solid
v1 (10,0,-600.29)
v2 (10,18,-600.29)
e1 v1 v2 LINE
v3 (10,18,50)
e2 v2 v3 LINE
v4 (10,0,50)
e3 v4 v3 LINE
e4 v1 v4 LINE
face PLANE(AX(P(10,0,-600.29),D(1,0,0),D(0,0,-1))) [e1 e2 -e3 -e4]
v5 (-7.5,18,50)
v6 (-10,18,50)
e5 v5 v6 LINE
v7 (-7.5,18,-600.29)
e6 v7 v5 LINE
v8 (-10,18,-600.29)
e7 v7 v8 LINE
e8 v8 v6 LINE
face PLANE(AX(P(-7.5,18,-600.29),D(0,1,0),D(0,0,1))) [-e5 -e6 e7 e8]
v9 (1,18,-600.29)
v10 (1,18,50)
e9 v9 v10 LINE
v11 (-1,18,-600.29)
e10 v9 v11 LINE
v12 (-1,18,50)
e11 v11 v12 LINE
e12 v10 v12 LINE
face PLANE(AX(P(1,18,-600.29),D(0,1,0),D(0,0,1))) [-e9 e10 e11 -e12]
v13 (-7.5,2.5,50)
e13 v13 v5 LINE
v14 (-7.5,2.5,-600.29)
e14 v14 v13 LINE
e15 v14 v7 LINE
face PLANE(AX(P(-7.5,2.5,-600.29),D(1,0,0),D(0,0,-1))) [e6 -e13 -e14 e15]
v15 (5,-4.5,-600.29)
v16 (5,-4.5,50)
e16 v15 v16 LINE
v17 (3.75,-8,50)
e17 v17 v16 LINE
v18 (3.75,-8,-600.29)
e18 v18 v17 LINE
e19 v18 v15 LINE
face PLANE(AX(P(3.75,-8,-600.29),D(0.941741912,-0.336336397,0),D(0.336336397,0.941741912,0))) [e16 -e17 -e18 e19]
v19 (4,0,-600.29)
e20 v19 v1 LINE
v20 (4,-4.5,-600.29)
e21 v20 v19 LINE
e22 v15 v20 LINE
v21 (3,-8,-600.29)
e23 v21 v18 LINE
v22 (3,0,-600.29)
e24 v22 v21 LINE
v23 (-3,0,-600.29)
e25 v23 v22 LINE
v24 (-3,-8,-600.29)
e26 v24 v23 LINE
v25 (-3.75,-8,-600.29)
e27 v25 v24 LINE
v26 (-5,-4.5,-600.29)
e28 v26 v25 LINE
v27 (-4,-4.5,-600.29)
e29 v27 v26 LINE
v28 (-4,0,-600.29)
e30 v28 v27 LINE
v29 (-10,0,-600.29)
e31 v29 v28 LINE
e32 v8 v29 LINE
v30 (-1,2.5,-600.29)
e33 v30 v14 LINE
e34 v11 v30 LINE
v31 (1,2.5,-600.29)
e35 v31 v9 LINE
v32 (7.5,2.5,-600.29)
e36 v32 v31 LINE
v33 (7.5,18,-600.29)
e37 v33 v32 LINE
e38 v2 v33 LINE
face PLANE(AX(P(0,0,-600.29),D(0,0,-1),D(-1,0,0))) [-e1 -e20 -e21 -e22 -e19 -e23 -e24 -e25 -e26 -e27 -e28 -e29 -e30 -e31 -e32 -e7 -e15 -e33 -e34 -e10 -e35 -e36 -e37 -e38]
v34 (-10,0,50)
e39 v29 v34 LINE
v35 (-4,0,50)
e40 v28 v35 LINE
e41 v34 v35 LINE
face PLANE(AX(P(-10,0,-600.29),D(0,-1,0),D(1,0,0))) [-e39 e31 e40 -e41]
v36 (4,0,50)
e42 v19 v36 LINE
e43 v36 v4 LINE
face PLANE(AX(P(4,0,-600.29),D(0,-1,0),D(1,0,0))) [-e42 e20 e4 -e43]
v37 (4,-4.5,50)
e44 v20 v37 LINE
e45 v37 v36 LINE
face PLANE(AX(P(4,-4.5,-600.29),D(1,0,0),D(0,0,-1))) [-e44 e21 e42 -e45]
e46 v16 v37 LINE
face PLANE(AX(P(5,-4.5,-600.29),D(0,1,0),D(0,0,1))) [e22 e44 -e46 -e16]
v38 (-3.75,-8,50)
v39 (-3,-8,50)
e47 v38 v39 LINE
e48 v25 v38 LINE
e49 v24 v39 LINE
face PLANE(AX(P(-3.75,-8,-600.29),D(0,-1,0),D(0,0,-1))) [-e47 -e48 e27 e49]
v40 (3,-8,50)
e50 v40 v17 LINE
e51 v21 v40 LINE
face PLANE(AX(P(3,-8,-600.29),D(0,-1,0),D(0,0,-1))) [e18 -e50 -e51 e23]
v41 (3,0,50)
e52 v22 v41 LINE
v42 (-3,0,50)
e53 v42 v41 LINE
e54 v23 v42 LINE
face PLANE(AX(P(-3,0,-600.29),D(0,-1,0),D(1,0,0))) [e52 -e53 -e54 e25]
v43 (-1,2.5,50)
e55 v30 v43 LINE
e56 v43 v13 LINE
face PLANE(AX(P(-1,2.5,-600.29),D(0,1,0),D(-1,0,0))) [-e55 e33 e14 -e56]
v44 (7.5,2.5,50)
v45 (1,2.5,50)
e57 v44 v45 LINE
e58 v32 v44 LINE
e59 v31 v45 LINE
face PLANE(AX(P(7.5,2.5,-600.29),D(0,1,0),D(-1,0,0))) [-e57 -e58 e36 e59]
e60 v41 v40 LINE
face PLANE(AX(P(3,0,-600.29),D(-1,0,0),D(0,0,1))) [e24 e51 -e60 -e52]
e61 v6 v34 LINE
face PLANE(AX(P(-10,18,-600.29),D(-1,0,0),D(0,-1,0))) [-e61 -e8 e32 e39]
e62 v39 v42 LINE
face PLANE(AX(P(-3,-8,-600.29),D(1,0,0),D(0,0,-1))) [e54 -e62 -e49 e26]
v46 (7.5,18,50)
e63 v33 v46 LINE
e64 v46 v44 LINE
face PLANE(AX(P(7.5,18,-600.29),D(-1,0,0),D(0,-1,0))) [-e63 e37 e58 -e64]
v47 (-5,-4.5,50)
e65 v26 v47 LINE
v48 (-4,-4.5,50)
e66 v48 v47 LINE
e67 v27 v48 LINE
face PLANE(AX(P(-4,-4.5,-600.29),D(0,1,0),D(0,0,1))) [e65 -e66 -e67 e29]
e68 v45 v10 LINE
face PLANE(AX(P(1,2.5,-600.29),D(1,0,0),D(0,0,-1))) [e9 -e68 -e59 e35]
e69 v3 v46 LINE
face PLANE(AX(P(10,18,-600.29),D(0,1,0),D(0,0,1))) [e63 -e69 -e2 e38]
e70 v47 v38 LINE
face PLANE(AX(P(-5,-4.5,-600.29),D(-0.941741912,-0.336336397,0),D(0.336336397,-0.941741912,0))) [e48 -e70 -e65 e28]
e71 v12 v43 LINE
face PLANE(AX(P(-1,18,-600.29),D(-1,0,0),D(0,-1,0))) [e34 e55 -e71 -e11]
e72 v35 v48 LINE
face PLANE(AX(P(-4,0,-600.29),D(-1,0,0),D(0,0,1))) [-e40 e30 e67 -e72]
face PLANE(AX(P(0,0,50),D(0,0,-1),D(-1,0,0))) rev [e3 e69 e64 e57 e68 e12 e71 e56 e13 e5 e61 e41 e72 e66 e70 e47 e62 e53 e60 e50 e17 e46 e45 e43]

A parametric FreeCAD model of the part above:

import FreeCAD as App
import Part
import Sketcher

doc = App.newDocument("Part")
params = doc.addObject("Spreadsheet::Sheet", "Params")
for row, (alias, value) in enumerate([
    ("sketch1_width", "6 mm"),
    ("sketch1_width2", "1 mm"),
    ("sketch1_width3", "2 mm"),
    ("sketch1_height", "18 mm"),
    ("sketch1_height2", "8 mm"),
    ("pad1_length", "650.29 mm"),
], start=1):
    params.set(f"A{row}", alias)
    params.set(f"B{row}", "=" + value)
    params.setAlias(f"B{row}", alias)

body = doc.addObject("PartDesign::Body", "Body")

sketch1 = body.newObject("Sketcher::SketchObject", "Sketch")
sketch1.AttachmentSupport = (doc.getObject("XY_Plane"), [""])
sketch1.MapMode = "FlatFace"
sketch1.AttachmentOffset = App.Placement(App.Vector(0, 0, 50), App.Rotation())
sketch1.addGeometry(Part.LineSegment(App.Vector(-1, 2.5, 0), App.Vector(-7.5, 2.5, 0)), False)
sketch1.addGeometry(Part.LineSegment(App.Vector(-7.5, 2.5, 0), App.Vector(-7.5, 18, 0)), False)
sketch1.addGeometry(Part.LineSegment(App.Vector(-7.5, 18, 0), App.Vector(-10, 18, 0)), False)
sketch1.addGeometry(Part.LineSegment(App.Vector(-10, 18, 0), App.Vector(-10, 0, 0)), False)
sketch1.addGeometry(Part.LineSegment(App.Vector(-10, 0, 0), App.Vector(-4, 0, 0)), False)
sketch1.addGeometry(Part.LineSegment(App.Vector(-4, 0, 0), App.Vector(-4, -4.5, 0)), False)
sketch1.addGeometry(Part.LineSegment(App.Vector(-4, -4.5, 0), App.Vector(-5, -4.5, 0)), False)
sketch1.addGeometry(Part.LineSegment(App.Vector(-5, -4.5, 0), App.Vector(-3.8, -8, 0)), False)
sketch1.addGeometry(Part.LineSegment(App.Vector(-3.8, -8, 0), App.Vector(-3, -8, 0)), False)
sketch1.addGeometry(Part.LineSegment(App.Vector(-3, -8, 0), App.Vector(-3, 0, 0)), False)
sketch1.addGeometry(Part.LineSegment(App.Vector(-3, 0, 0), App.Vector(3, 0, 0)), False)
sketch1.addGeometry(Part.LineSegment(App.Vector(3, 0, 0), App.Vector(3, -8, 0)), False)
sketch1.addGeometry(Part.LineSegment(App.Vector(3, -8, 0), App.Vector(3.8, -8, 0)), False)
sketch1.addGeometry(Part.LineSegment(App.Vector(3.8, -8, 0), App.Vector(5, -4.5, 0)), False)
sketch1.addGeometry(Part.LineSegment(App.Vector(5, -4.5, 0), App.Vector(4, -4.5, 0)), False)
sketch1.addGeometry(Part.LineSegment(App.Vector(4, -4.5, 0), App.Vector(4, 0, 0)), False)
sketch1.addGeometry(Part.LineSegment(App.Vector(4, 0, 0), App.Vector(10, 0, 0)), False)
sketch1.addGeometry(Part.LineSegment(App.Vector(10, 0, 0), App.Vector(10, 18, 0)), False)
sketch1.addGeometry(Part.LineSegment(App.Vector(10, 18, 0), App.Vector(7.5, 18, 0)), False)
sketch1.addGeometry(Part.LineSegment(App.Vector(7.5, 18, 0), App.Vector(7.5, 2.5, 0)), False)
sketch1.addGeometry(Part.LineSegment(App.Vector(7.5, 2.5, 0), App.Vector(1, 2.5, 0)), False)
sketch1.addGeometry(Part.LineSegment(App.Vector(1, 2.5, 0), App.Vector(1, 18, 0)), False)
sketch1.addGeometry(Part.LineSegment(App.Vector(1, 18, 0), App.Vector(-1, 18, 0)), False)
sketch1.addGeometry(Part.LineSegment(App.Vector(-1, 18, 0), App.Vector(-1, 2.5, 0)), False)
sketch1.addConstraint(Sketcher.Constraint("Coincident", 0, 2, 1, 1))
sketch1.addConstraint(Sketcher.Constraint("Coincident", 1, 2, 2, 1))
sketch1.addConstraint(Sketcher.Constraint("Coincident", 2, 2, 3, 1))
sketch1.addConstraint(Sketcher.Constraint("Coincident", 3, 2, 4, 1))
sketch1.addConstraint(Sketcher.Constraint("Coincident", 4, 2, 5, 1))
sketch1.addConstraint(Sketcher.Constraint("Coincident", 5, 2, 6, 1))
sketch1.addConstraint(Sketcher.Constraint("Coincident", 6, 2, 7, 1))
sketch1.addConstraint(Sketcher.Constraint("Coincident", 7, 2, 8, 1))
sketch1.addConstraint(Sketcher.Constraint("Coincident", 8, 2, 9, 1))
sketch1.addConstraint(Sketcher.Constraint("Coincident", 9, 2, 10, 1))
sketch1.addConstraint(Sketcher.Constraint("Coincident", 10, 2, 11, 1))
sketch1.addConstraint(Sketcher.Constraint("Coincident", 11, 2, 12, 1))
sketch1.addConstraint(Sketcher.Constraint("Coincident", 12, 2, 13, 1))
sketch1.addConstraint(Sketcher.Constraint("Coincident", 13, 2, 14, 1))
sketch1.addConstraint(Sketcher.Constraint("Coincident", 14, 2, 15, 1))
sketch1.addConstraint(Sketcher.Constraint("Coincident", 15, 2, 16, 1))
sketch1.addConstraint(Sketcher.Constraint("Coincident", 16, 2, 17, 1))
sketch1.addConstraint(Sketcher.Constraint("Coincident", 17, 2, 18, 1))
sketch1.addConstraint(Sketcher.Constraint("Coincident", 18, 2, 19, 1))
sketch1.addConstraint(Sketcher.Constraint("Coincident", 19, 2, 20, 1))
sketch1.addConstraint(Sketcher.Constraint("Coincident", 20, 2, 21, 1))
sketch1.addConstraint(Sketcher.Constraint("Coincident", 21, 2, 22, 1))
sketch1.addConstraint(Sketcher.Constraint("Coincident", 22, 2, 23, 1))
sketch1.addConstraint(Sketcher.Constraint("Coincident", 23, 2, 0, 1))
sketch1.addConstraint(Sketcher.Constraint("Horizontal", 0))
sketch1.addConstraint(Sketcher.Constraint("Vertical", 1))
sketch1.addConstraint(Sketcher.Constraint("Horizontal", 2))
sketch1.addConstraint(Sketcher.Constraint("Vertical", 3))
sketch1.addConstraint(Sketcher.Constraint("Horizontal", 4))
sketch1.addConstraint(Sketcher.Constraint("Vertical", 5))
sketch1.addConstraint(Sketcher.Constraint("Horizontal", 6))
sketch1.addConstraint(Sketcher.Constraint("Horizontal", 8))
sketch1.addConstraint(Sketcher.Constraint("Vertical", 9))
sketch1.addConstraint(Sketcher.Constraint("Horizontal", 10))
sketch1.addConstraint(Sketcher.Constraint("Vertical", 11))
sketch1.addConstraint(Sketcher.Constraint("Horizontal", 12))
sketch1.addConstraint(Sketcher.Constraint("Horizontal", 14))
sketch1.addConstraint(Sketcher.Constraint("Vertical", 15))
sketch1.addConstraint(Sketcher.Constraint("Horizontal", 16))
sketch1.addConstraint(Sketcher.Constraint("Vertical", 17))
sketch1.addConstraint(Sketcher.Constraint("Horizontal", 18))
sketch1.addConstraint(Sketcher.Constraint("Vertical", 19))
sketch1.addConstraint(Sketcher.Constraint("Horizontal", 20))
sketch1.addConstraint(Sketcher.Constraint("Vertical", 21))
sketch1.addConstraint(Sketcher.Constraint("Horizontal", 22))
sketch1.addConstraint(Sketcher.Constraint("Vertical", 23))
sketch1.addConstraint(Sketcher.Constraint("Symmetric", 9, 2, 10, 2, -1, 1))
sketch1.addConstraint(Sketcher.Constraint("Symmetric", 4, 2, 15, 2, -1, 1))
sketch1.addConstraint(Sketcher.Constraint("Symmetric", 7, 2, 12, 2, -2))
sketch1.addConstraint(Sketcher.Constraint("Symmetric", 6, 2, 13, 2, -2))
sketch1.addConstraint(Sketcher.Constraint("Symmetric", 3, 2, 16, 2, -2))
sketch1.addConstraint(Sketcher.Constraint("Symmetric", 1, 2, 18, 2, -2))
sketch1.addConstraint(Sketcher.Constraint("Symmetric", 20, 2, 23, 2, -2))
sketch1.addConstraint(Sketcher.Constraint("Horizontal", 18, 2, 21, 2))
sketch1.addConstraint(Sketcher.Constraint("Equal", 4, 10))
sketch1.addConstraint(Sketcher.Constraint("DistanceX", 4, 1, 4, 2, 6.0))
sketch1.addConstraint(Sketcher.Constraint("DistanceX", 6, 2, 6, 1, 1.0))
sketch1.addConstraint(Sketcher.Constraint("DistanceX", 22, 2, 22, 1, 2.0))
sketch1.addConstraint(Sketcher.Constraint("DistanceY", 3, 2, 3, 1, 18.0))
sketch1.addConstraint(Sketcher.Constraint("DistanceY", 9, 1, 9, 2, 8.0))
sketch1.addConstraint(Sketcher.Constraint("DistanceX", 0, 2, 0, 1, 6.5))
sketch1.addConstraint(Sketcher.Constraint("DistanceX", 2, 2, 2, 1, 2.5))
sketch1.addConstraint(Sketcher.Constraint("DistanceY", 1, 1, 1, 2, 15.5))
sketch1.addConstraint(Sketcher.Constraint("DistanceY", 5, 2, 5, 1, 4.5))
sketch1.addConstraint(Sketcher.Constraint("DistanceX", 8, 1, 8, 2, 0.75))
sketch1.setExpression("Constraints[55]", "Params.sketch1_width")
sketch1.setExpression("Constraints[56]", "Params.sketch1_width2")
sketch1.setExpression("Constraints[57]", "Params.sketch1_width3")
sketch1.setExpression("Constraints[58]", "Params.sketch1_height")
sketch1.setExpression("Constraints[59]", "Params.sketch1_height2")
pad1 = body.newObject("PartDesign::Pad", "Pad")
pad1.Profile = sketch1
pad1.setExpression("Length", "Params.pad1_length")
pad1.Reversed = True

doc.recompute()
